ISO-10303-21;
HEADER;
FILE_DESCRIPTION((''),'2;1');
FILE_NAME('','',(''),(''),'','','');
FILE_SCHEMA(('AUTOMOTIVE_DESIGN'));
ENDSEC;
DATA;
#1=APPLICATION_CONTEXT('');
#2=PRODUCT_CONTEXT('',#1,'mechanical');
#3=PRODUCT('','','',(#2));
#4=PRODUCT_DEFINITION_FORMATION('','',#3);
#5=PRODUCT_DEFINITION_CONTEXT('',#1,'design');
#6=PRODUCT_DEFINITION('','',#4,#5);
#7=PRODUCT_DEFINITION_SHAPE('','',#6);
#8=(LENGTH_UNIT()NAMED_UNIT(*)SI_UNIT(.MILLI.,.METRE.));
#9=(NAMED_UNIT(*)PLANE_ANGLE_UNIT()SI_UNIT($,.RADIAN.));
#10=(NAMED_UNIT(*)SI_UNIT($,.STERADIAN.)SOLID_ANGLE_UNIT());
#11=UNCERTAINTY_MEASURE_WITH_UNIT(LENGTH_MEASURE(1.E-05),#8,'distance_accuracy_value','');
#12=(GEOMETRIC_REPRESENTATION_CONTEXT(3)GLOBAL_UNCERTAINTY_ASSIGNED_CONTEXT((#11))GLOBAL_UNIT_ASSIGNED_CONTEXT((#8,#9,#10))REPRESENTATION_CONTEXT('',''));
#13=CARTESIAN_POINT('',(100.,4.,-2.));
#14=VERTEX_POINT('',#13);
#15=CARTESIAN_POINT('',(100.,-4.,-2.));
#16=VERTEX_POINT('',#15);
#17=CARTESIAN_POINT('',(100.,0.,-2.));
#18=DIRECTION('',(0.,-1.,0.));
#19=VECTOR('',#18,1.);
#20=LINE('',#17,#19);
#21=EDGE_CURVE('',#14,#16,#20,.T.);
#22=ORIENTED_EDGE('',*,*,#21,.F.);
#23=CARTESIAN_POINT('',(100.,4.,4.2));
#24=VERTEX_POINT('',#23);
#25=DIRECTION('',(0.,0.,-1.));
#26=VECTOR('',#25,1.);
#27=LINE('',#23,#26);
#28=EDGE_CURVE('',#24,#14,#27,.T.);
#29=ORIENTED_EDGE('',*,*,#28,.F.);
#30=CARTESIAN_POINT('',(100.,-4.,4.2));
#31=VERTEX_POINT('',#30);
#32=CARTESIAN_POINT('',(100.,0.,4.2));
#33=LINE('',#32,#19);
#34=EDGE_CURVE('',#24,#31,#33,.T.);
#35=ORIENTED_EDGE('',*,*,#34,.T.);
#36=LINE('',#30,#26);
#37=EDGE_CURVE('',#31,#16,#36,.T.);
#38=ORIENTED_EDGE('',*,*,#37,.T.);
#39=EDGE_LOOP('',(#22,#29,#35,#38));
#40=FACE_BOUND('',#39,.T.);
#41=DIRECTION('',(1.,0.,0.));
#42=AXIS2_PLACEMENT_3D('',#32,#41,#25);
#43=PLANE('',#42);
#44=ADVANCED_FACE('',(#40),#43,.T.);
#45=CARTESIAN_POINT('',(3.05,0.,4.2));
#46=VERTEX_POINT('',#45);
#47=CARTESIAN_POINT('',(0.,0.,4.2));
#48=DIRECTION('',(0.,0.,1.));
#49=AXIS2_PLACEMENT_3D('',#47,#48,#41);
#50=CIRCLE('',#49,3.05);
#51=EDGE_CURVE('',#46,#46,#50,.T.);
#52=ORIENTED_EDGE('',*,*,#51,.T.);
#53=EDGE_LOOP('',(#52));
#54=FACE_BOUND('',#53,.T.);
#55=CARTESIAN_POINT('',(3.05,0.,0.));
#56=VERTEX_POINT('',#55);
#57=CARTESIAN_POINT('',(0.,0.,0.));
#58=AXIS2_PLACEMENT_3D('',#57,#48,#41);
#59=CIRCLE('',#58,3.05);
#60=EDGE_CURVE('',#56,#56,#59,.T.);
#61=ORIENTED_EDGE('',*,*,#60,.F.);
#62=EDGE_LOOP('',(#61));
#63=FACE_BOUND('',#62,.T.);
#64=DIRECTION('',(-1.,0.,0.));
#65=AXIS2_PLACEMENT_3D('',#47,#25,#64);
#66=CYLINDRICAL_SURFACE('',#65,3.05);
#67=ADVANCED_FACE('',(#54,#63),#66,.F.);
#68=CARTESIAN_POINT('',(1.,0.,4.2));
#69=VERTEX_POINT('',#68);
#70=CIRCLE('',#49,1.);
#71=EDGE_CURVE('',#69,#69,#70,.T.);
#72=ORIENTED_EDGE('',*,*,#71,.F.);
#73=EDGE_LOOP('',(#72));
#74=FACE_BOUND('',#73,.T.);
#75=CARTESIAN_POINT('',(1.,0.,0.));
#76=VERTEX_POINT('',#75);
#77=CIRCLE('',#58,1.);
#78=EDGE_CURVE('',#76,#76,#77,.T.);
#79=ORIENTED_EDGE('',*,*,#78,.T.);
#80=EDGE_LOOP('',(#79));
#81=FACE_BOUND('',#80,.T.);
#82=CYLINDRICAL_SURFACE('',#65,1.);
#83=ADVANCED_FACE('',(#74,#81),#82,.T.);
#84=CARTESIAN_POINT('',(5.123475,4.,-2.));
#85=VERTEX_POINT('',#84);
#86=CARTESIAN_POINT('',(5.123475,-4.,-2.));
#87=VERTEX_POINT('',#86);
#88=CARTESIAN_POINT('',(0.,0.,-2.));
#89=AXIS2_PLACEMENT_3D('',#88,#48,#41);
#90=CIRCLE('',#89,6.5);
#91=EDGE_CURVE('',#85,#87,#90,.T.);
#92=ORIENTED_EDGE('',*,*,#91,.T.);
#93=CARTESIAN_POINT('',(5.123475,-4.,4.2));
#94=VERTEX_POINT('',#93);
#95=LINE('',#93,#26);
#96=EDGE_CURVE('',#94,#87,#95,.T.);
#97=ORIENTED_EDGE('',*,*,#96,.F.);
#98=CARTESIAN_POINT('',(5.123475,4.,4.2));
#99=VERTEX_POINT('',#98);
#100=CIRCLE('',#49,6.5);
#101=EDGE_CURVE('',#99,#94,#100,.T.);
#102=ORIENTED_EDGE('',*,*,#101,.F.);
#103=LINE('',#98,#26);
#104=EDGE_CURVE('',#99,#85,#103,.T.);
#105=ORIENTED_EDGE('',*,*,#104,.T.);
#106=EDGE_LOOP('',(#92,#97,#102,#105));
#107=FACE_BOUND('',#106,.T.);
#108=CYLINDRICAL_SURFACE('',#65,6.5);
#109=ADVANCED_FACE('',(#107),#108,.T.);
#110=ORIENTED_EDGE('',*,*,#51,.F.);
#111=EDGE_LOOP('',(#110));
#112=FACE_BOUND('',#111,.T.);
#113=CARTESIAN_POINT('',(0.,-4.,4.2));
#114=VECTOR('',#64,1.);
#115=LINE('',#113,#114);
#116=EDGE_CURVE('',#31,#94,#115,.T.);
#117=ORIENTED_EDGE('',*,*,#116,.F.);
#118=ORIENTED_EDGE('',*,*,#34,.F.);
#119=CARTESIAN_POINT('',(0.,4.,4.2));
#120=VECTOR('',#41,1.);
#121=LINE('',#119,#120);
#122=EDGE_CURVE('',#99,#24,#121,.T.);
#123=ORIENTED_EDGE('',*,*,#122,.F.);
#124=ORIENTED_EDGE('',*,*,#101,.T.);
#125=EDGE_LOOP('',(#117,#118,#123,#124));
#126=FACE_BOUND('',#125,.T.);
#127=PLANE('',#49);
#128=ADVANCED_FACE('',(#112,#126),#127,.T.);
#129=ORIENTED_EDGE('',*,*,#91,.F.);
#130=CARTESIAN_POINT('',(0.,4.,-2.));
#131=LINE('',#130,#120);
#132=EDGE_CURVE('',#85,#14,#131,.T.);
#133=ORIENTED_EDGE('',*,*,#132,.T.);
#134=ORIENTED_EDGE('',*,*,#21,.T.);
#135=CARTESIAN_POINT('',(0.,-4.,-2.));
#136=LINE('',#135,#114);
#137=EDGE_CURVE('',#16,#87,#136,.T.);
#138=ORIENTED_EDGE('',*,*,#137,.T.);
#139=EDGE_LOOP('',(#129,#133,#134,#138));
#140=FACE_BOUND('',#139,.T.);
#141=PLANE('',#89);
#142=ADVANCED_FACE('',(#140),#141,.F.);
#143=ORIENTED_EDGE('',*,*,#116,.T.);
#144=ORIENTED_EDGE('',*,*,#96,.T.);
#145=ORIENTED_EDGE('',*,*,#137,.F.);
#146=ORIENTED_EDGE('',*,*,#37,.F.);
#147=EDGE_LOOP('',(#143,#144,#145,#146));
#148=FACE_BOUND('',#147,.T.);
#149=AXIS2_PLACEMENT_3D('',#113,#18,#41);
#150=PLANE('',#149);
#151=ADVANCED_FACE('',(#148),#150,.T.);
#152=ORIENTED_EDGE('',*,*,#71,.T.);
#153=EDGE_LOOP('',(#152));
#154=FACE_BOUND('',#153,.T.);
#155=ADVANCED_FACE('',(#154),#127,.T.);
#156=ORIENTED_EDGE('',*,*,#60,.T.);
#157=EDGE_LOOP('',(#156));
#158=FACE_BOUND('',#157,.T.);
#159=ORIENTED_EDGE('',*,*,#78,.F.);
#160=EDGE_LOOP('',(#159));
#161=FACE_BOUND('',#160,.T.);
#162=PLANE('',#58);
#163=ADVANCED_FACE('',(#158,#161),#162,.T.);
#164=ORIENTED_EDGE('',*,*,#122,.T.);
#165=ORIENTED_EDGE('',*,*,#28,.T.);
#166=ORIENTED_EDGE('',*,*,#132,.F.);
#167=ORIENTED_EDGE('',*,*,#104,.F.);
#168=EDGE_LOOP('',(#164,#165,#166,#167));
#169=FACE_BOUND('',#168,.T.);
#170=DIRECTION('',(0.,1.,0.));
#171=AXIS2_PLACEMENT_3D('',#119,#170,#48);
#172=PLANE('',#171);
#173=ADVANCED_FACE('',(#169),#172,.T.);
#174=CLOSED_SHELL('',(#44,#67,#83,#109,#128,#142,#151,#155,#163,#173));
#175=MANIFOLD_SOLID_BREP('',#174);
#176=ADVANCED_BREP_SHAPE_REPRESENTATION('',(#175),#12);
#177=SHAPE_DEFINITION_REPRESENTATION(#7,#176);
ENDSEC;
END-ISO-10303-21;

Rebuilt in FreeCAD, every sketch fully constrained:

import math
import FreeCAD as App
import Part
import Sketcher
from FreeCAD import Vector

doc = App.newDocument("Part")
params = doc.addObject("Spreadsheet::Sheet", "Params")
for row, (alias, value) in enumerate([
    ("sketch1_diameter", "6.1 mm"),
    ("sketch1_radius", "6.5 mm"),
    ("sketch1_height", "8 mm"),
    ("pad1_length", "4.2 mm"),
    ("sketch2_diameter", "2 mm"),
    ("pad2_length", "4.2 mm"),
    ("sketch3_radius", "6.5 mm"),
    ("sketch3_height", "8 mm"),
    ("pad3_length", "2 mm"),
], start=1):
    params.set(f"A{row}", alias)
    params.set(f"B{row}", "=" + value)
    params.setAlias(f"B{row}", alias)

body = doc.addObject("PartDesign::Body", "Body")

# Sketch on XY plane
sketch1 = body.newObject("Sketcher::SketchObject", "Sketch")
sketch1.AttachmentSupport = (doc.getObject("XY_Plane"), [""])
sketch1.MapMode = "FlatFace"
sketch1.addGeometry([
    Part.LineSegment(Vector(100, 4, 0), Vector(5.1, 4, 0)),  # 0
    Part.ArcOfCircle(Part.Circle(Vector(0, 0, 0), Vector(0, 0, 1), 6.5), math.radians(38), math.radians(322)),  # 1
    Part.LineSegment(Vector(5.1, -4, 0), Vector(100, -4, 0)),  # 2
    Part.LineSegment(Vector(100, -4, 0), Vector(100, 4, 0)),  # 3
    Part.Circle(Vector(0, 0, 0), Vector(0, 0, 1), 3),  # 4
], False)
sketch1.addConstraint([
    Sketcher.Constraint("Coincident", 0, 2, 1, 1),
    Sketcher.Constraint("Coincident", 1, 2, 2, 1),
    Sketcher.Constraint("Coincident", 2, 2, 3, 1),
    Sketcher.Constraint("Coincident", 3, 2, 0, 1),
    Sketcher.Constraint("Horizontal", 0),
    Sketcher.Constraint("Horizontal", 2),
    Sketcher.Constraint("Vertical", 3),
    Sketcher.Constraint("Coincident", 1, 3, -1, 1),
    Sketcher.Constraint("Coincident", 4, 3, -1, 1),
    Sketcher.Constraint("Vertical", 0, 2, 1, 2),
    Sketcher.Constraint("Diameter", 4, 6.1),
    Sketcher.Constraint("Radius", 1, 6.5),
    Sketcher.Constraint("DistanceY", 3, 1, 3, 2, 8.0),
    Sketcher.Constraint("DistanceX", -1, 1, 2, 2, 100.0),
])
sketch1.setExpression("Constraints[10]", "Params.sketch1_diameter")
sketch1.setExpression("Constraints[11]", "Params.sketch1_radius")
sketch1.setExpression("Constraints[12]", "Params.sketch1_height")
pad1 = body.newObject("PartDesign::Pad", "Pad")
pad1.Profile = sketch1
pad1.setExpression("Length", "Params.pad1_length")
body2 = doc.addObject("PartDesign::Body", "Body001")

# Sketch on XY plane
sketch2 = body2.newObject("Sketcher::SketchObject", "Sketch001")
sketch2.AttachmentSupport = (doc.getObject("XY_Plane001"), [""])
sketch2.MapMode = "FlatFace"
sketch2.addGeometry(Part.Circle(Vector(0, 0, 0), Vector(0, 0, 1), 1), False)
sketch2.addConstraint([
    Sketcher.Constraint("Coincident", 0, 3, -1, 1),
    Sketcher.Constraint("Diameter", 0, 2.0),
])
sketch2.setExpression("Constraints[1]", "Params.sketch2_diameter")
pad2 = body2.newObject("PartDesign::Pad", "Pad001")
pad2.Profile = sketch2
pad2.setExpression("Length", "Params.pad2_length")
body.AllowCompound = True
doc.recompute()

boolean = body.newObject("PartDesign::Boolean", "Boolean")
boolean.Type = "Fuse"
boolean.addObjects([body2])

# Sketch on XY plane
sketch3 = body.newObject("Sketcher::SketchObject", "Sketch002")
sketch3.AttachmentSupport = (doc.getObject("XY_Plane"), [""])
sketch3.MapMode = "FlatFace"
sketch3.AttachmentOffset = App.Placement(Vector(0, 0, -2), App.Rotation())
sketch3.addGeometry([
    Part.LineSegment(Vector(100, 4, 0), Vector(5, 4, 0)),
    Part.ArcOfCircle(Part.Circle(Vector(0, 0, 0), Vector(0, 0, 1), 6), math.radians(38), math.radians(322)),
    Part.LineSegment(Vector(5, -4, 0), Vector(100, -4, 0)),
    Part.LineSegment(Vector(100, -4, 0), Vector(100, 4, 0)),
], False)
sketch3.addConstraint([
    Sketcher.Constraint("Coincident", 0, 2, 1, 1),
    Sketcher.Constraint("Coincident", 1, 2, 2, 1),
    Sketcher.Constraint("Coincident", 2, 2, 3, 1),
    Sketcher.Constraint("Coincident", 3, 2, 0, 1),
    Sketcher.Constraint("Horizontal", 0),
    Sketcher.Constraint("Horizontal", 2),
    Sketcher.Constraint("Vertical", 3),
    Sketcher.Constraint("Coincident", 1, 3, -1, 1),
    Sketcher.Constraint("Vertical", 0, 2, 1, 2),
    Sketcher.Constraint("Radius", 1, 6.5),
    Sketcher.Constraint("DistanceY", 3, 1, 3, 2, 8.0),
    Sketcher.Constraint("DistanceX", -1, 1, 2, 2, 100.0),
])
sketch3.setExpression("Constraints[9]", "Params.sketch3_radius")
sketch3.setExpression("Constraints[10]", "Params.sketch3_height")
pad3 = body.newObject("PartDesign::Pad", "Pad002")
pad3.Profile = sketch3
pad3.setExpression("Length", "Params.pad3_length")

doc.recompute()
